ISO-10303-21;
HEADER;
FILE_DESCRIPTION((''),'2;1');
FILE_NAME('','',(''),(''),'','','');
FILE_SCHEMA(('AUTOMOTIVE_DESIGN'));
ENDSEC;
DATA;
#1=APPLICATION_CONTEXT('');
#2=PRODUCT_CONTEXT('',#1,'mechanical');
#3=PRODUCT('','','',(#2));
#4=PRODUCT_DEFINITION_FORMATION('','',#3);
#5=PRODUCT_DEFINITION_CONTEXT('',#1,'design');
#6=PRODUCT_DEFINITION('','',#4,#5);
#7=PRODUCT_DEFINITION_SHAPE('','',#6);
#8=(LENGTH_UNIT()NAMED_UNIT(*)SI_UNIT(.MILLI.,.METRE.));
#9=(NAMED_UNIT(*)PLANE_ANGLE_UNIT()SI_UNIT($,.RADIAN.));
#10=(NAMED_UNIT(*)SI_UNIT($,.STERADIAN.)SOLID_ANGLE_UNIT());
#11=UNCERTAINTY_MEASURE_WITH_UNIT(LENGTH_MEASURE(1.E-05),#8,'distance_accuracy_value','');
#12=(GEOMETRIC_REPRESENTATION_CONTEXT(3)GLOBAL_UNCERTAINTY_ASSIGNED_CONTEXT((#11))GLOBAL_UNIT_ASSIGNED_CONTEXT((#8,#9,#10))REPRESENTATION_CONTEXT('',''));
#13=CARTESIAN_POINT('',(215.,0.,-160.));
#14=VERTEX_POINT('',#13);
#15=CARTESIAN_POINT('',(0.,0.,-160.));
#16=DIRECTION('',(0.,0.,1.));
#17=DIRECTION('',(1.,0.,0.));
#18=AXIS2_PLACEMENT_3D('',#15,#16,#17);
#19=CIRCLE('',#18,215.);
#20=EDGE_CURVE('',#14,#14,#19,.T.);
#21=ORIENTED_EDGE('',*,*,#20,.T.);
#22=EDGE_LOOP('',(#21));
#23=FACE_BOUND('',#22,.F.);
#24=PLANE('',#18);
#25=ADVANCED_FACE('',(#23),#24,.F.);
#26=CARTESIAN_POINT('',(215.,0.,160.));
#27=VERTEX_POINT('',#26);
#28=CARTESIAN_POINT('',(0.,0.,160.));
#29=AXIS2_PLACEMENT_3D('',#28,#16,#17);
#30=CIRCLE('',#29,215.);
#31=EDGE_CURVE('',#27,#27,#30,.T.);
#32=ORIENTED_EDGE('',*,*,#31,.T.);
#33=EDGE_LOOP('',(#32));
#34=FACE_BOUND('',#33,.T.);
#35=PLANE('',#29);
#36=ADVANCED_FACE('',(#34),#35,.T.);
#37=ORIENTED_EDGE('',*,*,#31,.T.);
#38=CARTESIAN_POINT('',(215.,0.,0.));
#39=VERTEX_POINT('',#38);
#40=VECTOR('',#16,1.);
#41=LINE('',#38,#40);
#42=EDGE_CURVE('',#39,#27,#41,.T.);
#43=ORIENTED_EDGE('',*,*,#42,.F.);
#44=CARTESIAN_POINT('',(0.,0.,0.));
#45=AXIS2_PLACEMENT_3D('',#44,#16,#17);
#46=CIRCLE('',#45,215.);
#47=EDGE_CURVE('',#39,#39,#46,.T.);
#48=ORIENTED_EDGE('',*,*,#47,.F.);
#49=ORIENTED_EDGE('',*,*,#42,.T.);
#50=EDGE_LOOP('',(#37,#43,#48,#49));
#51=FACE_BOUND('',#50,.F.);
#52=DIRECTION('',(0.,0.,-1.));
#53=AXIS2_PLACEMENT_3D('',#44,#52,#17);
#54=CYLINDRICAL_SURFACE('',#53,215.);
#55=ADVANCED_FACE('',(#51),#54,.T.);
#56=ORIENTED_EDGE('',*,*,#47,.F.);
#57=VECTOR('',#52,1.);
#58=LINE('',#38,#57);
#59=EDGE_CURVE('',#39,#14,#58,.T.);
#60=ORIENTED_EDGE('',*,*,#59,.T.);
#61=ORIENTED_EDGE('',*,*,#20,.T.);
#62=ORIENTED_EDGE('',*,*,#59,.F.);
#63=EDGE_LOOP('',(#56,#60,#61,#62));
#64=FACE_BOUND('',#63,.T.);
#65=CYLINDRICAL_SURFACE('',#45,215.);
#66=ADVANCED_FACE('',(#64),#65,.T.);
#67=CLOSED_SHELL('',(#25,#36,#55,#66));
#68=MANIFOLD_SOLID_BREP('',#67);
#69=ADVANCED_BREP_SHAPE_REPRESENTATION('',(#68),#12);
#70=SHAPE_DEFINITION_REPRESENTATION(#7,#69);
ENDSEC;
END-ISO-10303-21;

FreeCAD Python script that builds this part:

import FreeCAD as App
import Part
import Sketcher

V = App.Vector

doc = App.newDocument("Part")
body = doc.addObject("PartDesign::Body", "Body")

# Sketch on XY plane
sketch1 = doc.addObject("Sketcher::SketchObject", "Sketch")
body.addObject(sketch1)
sketch1.AttachmentSupport = (doc.XY_Plane, [""])
sketch1.MapMode = "FlatFace"
sketch1.addGeometry(Part.Circle(V(0, 0, 0), V(0, 0, 1), 215), False)
sketch1.addConstraint([
    Sketcher.Constraint("Coincident", 0, 3, -1, 1),
    Sketcher.Constraint("Diameter", 0, 430.0),
])
pad1 = doc.addObject("PartDesign::Pad", "Pad")
body.addObject(pad1)
pad1.Profile = sketch1
pad1.Length = 320
pad1.Midplane = True

doc.recompute()
